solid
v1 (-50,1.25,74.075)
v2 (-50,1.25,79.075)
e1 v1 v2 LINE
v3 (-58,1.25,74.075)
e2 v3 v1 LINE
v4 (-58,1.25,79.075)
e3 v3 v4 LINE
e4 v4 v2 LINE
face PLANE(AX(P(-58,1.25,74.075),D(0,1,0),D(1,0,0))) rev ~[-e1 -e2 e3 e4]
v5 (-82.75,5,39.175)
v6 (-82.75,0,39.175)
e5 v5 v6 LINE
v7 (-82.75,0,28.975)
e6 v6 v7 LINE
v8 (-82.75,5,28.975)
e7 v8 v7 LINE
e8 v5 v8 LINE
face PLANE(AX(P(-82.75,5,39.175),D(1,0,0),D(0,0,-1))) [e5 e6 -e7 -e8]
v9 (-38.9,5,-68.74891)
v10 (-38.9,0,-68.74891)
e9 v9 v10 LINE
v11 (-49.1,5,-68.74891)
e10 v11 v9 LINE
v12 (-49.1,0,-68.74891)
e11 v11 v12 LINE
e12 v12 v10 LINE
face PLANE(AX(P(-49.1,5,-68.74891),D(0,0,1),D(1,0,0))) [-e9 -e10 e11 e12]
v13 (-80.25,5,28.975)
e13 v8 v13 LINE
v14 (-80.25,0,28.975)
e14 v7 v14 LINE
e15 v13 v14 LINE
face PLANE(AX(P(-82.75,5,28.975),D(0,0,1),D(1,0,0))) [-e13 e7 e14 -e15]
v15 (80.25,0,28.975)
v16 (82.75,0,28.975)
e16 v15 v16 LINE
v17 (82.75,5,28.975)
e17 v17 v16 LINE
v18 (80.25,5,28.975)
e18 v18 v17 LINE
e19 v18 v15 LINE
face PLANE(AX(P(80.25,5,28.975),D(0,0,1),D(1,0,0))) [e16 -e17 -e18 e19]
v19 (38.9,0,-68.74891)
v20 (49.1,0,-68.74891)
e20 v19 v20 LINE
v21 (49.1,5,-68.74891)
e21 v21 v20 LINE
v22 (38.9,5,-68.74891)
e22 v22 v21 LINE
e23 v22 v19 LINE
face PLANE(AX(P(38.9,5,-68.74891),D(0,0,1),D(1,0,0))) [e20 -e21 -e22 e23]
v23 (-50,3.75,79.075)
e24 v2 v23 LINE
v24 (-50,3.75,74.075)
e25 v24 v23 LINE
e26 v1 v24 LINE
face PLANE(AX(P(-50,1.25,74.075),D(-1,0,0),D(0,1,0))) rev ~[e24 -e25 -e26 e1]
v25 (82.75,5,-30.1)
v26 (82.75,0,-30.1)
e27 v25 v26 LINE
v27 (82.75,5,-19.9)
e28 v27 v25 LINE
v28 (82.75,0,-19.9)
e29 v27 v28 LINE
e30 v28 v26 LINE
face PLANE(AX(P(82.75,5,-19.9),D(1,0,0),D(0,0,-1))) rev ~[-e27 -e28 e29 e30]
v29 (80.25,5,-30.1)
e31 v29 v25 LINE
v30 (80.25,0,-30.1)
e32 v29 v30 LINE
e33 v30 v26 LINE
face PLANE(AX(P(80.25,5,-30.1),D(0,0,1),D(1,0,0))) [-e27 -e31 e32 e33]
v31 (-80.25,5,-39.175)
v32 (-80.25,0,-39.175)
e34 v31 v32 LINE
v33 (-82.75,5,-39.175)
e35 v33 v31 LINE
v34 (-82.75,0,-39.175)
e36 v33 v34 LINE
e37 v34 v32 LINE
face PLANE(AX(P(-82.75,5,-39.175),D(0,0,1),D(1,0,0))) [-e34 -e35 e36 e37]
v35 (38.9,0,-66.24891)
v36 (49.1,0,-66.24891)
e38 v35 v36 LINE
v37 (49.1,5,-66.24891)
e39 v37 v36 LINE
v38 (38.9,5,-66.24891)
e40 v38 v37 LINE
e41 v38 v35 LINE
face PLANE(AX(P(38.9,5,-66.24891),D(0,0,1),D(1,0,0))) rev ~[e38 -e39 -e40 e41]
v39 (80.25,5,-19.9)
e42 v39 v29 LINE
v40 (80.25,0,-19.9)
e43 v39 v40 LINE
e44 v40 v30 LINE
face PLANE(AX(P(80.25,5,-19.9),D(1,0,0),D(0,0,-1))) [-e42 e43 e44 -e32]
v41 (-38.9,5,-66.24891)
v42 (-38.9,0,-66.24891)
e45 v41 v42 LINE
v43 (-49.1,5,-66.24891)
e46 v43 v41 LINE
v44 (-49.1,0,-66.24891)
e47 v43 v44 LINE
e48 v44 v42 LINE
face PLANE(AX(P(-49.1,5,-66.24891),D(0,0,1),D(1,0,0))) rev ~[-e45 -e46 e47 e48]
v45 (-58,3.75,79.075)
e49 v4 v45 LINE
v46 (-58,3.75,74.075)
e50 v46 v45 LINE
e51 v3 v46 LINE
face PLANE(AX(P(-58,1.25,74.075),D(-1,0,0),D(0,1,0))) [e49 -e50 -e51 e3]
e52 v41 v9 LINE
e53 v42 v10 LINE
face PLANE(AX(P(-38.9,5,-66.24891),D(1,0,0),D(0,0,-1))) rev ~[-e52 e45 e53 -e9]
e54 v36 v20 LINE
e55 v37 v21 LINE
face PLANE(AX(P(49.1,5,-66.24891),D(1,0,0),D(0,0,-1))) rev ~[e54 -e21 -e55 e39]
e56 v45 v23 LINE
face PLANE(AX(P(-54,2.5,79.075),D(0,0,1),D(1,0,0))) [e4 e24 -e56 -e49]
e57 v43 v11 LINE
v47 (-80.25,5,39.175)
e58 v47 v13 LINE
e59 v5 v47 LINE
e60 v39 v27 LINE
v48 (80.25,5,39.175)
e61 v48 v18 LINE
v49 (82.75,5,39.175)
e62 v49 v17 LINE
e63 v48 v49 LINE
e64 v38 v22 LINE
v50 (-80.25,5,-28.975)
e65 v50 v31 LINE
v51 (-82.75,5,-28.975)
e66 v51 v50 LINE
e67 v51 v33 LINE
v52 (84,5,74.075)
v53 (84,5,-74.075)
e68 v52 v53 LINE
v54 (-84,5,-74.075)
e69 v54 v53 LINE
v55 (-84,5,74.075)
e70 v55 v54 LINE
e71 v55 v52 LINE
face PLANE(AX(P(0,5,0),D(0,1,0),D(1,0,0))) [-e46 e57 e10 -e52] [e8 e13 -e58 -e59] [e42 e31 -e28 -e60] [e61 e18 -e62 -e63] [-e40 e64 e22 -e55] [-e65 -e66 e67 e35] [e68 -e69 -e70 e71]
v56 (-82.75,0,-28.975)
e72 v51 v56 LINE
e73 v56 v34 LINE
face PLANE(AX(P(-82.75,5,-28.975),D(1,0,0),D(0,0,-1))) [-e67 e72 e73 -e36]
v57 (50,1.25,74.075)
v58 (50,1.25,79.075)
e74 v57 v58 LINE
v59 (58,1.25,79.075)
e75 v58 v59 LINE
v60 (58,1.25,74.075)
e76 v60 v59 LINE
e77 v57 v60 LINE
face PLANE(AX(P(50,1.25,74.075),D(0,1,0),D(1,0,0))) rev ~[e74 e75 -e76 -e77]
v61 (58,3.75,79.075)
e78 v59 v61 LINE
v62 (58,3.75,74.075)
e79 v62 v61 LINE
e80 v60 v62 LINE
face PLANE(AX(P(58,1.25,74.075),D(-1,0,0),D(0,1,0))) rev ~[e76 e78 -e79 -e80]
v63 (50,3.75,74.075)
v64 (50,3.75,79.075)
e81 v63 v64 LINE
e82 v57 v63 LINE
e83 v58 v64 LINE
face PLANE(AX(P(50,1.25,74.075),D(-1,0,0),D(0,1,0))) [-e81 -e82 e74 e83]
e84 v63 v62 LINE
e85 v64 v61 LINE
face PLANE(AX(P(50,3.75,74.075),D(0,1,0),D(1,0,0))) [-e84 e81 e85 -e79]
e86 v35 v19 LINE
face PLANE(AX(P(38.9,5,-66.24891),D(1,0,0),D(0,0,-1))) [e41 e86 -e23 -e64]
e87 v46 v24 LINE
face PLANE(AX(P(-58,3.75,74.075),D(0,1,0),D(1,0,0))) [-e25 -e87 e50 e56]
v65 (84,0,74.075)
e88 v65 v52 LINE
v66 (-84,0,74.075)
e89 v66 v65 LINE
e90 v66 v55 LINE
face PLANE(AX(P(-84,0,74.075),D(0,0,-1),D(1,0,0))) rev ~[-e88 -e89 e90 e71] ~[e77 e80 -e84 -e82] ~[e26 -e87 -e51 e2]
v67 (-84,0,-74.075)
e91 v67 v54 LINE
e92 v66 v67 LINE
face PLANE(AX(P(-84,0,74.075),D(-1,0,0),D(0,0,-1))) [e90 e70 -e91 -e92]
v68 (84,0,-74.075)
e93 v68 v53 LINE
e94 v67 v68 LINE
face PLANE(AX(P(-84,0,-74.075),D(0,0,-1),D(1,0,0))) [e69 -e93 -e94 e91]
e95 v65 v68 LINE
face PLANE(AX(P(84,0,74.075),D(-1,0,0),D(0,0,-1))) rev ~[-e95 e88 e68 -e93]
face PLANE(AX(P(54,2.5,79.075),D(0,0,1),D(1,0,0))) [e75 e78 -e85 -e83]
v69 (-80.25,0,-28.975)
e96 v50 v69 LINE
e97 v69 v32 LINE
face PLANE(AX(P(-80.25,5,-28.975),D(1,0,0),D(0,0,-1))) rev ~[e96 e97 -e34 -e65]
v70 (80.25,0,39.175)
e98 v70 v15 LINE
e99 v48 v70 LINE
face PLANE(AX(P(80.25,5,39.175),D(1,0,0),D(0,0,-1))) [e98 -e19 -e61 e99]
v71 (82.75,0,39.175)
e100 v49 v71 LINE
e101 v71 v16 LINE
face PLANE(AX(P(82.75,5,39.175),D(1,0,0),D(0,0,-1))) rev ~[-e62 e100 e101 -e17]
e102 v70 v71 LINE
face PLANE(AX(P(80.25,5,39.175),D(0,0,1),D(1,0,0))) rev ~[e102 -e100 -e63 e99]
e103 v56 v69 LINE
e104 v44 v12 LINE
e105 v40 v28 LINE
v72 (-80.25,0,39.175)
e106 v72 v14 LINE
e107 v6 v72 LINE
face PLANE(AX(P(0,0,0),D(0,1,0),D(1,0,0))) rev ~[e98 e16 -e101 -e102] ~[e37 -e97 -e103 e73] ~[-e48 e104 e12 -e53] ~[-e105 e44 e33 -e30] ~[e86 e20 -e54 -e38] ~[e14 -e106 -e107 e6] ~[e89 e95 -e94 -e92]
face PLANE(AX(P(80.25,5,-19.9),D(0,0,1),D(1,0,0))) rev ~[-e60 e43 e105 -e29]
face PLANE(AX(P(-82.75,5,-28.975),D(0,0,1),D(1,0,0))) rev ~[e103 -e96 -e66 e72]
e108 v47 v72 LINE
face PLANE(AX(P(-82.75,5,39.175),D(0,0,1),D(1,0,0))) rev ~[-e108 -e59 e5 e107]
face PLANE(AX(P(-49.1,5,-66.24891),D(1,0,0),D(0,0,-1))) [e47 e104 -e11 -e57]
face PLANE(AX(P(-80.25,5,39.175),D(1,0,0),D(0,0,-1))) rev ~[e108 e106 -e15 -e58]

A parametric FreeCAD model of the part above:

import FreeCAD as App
import Part
import Sketcher
from FreeCAD import Vector

doc = App.newDocument("Part")
params = doc.addObject("Spreadsheet::Sheet", "Params")
for row, (alias, value) in enumerate([
    ("sketch1_width", "168 mm"),
    ("sketch1_height", "148.15 mm"),
    ("pad1_length", "5 mm"),
    ("sketch2_width", "2.5 mm"),
    ("sketch2_height", "10.2 mm"),
    ("pocket1_length", "5 mm"),
    ("sketch3_width", "8 mm"),
    ("sketch3_height", "2.5 mm"),
    ("pad2_length", "5 mm"),
    ("sketch4_width", "10.2 mm"),
    ("sketch4_height", "2.5 mm"),
    ("pocket2_length", "5 mm"),
], start=1):
    params.set(f"A{row}", alias)
    params.set(f"B{row}", "=" + value)
    params.setAlias(f"B{row}", alias)

body = doc.addObject("PartDesign::Body", "Body")

sketch1 = doc.addObject("Sketcher::SketchObject", "Sketch")
body.addObject(sketch1)
sketch1.AttachmentSupport = (doc.XZ_Plane, [""])
sketch1.MapMode = "FlatFace"
sketch1.addGeometry([
    Part.LineSegment(Vector(-84, -74, 0), Vector(-84, 74, 0)),
    Part.LineSegment(Vector(-84, 74, 0), Vector(84, 74, 0)),
    Part.LineSegment(Vector(84, 74, 0), Vector(84, -74, 0)),
    Part.LineSegment(Vector(84, -74, 0), Vector(-84, -74, 0)),
], False)
sketch1.addConstraint([
    Sketcher.Constraint("Coincident", 0, 2, 1, 1),
    Sketcher.Constraint("Coincident", 1, 2, 2, 1),
    Sketcher.Constraint("Coincident", 2, 2, 3, 1),
    Sketcher.Constraint("Coincident", 3, 2, 0, 1),
    Sketcher.Constraint("Vertical", 0),
    Sketcher.Constraint("Horizontal", 1),
    Sketcher.Constraint("Vertical", 2),
    Sketcher.Constraint("Horizontal", 3),
    Sketcher.Constraint("Symmetric", 0, 2, 2, 2, -1, 1),
    Sketcher.Constraint("DistanceX", 1, 1, 1, 2, 168.0),
    Sketcher.Constraint("DistanceY", 0, 1, 0, 2, 148.15),
])
sketch1.setExpression("Constraints[9]", "Params.sketch1_width")
sketch1.setExpression("Constraints[10]", "Params.sketch1_height")
pad1 = doc.addObject("PartDesign::Pad", "Pad")
body.addObject(pad1)
pad1.Profile = sketch1
pad1.setExpression("Length", "Params.pad1_length")
pad1.Reversed = True

sketch2 = doc.addObject("Sketcher::SketchObject", "Sketch001")
body.addObject(sketch2)
sketch2.AttachmentSupport = (doc.XZ_Plane, [""])
sketch2.MapMode = "FlatFace"
sketch2.AttachmentOffset = App.Placement(Vector(0, 0, -5), App.Rotation())
sketch2.addGeometry([
    Part.LineSegment(Vector(-82.8, -39.2, 0), Vector(-82.8, -29, 0)),
    Part.LineSegment(Vector(-82.8, -29, 0), Vector(-80.2, -29, 0)),
    Part.LineSegment(Vector(-80.2, -29, 0), Vector(-80.2, -39.2, 0)),
    Part.LineSegment(Vector(-80.2, -39.2, 0), Vector(-82.8, -39.2, 0)),
    Part.LineSegment(Vector(-82.8, 29, 0), Vector(-82.8, 39.2, 0)),
    Part.LineSegment(Vector(-82.8, 39.2, 0), Vector(-80.2, 39.2, 0)),
    Part.LineSegment(Vector(-80.2, 39.2, 0), Vector(-80.2, 29, 0)),
    Part.LineSegment(Vector(-80.2, 29, 0), Vector(-82.8, 29, 0)),
    Part.LineSegment(Vector(80.2, 29, 0), Vector(80.2, 39.2, 0)),
    Part.LineSegment(Vector(80.2, 39.2, 0), Vector(82.8, 39.2, 0)),
    Part.LineSegment(Vector(82.8, 39.2, 0), Vector(82.8, 29, 0)),
    Part.LineSegment(Vector(82.8, 29, 0), Vector(80.2, 29, 0)),
    Part.LineSegment(Vector(80.2, -30.1, 0), Vector(80.2, -19.9, 0)),
    Part.LineSegment(Vector(80.2, -19.9, 0), Vector(82.8, -19.9, 0)),
    Part.LineSegment(Vector(82.8, -19.9, 0), Vector(82.8, -30.1, 0)),
    Part.LineSegment(Vector(82.8, -30.1, 0), Vector(80.2, -30.1, 0)),
], False)
sketch2.addConstraint([
    Sketcher.Constraint("Coincident", 0, 2, 1, 1),
    Sketcher.Constraint("Coincident", 1, 2, 2, 1),
    Sketcher.Constraint("Coincident", 2, 2, 3, 1),
    Sketcher.Constraint("Coincident", 3, 2, 0, 1),
    Sketcher.Constraint("Coincident", 4, 2, 5, 1),
    Sketcher.Constraint("Coincident", 5, 2, 6, 1),
    Sketcher.Constraint("Coincident", 6, 2, 7, 1),
    Sketcher.Constraint("Coincident", 7, 2, 4, 1),
    Sketcher.Constraint("Coincident", 8, 2, 9, 1),
    Sketcher.Constraint("Coincident", 9, 2, 10, 1),
    Sketcher.Constraint("Coincident", 10, 2, 11, 1),
    Sketcher.Constraint("Coincident", 11, 2, 8, 1),
    Sketcher.Constraint("Coincident", 12, 2, 13, 1),
    Sketcher.Constraint("Coincident", 13, 2, 14, 1),
    Sketcher.Constraint("Coincident", 14, 2, 15, 1),
    Sketcher.Constraint("Coincident", 15, 2, 12, 1),
    Sketcher.Constraint("Vertical", 0),
    Sketcher.Constraint("Horizontal", 1),
    Sketcher.Constraint("Vertical", 2),
    Sketcher.Constraint("Horizontal", 3),
    Sketcher.Constraint("Vertical", 4),
    Sketcher.Constraint("Horizontal", 5),
    Sketcher.Constraint("Vertical", 6),
    Sketcher.Constraint("Horizontal", 7),
    Sketcher.Constraint("Vertical", 8),
    Sketcher.Constraint("Horizontal", 9),
    Sketcher.Constraint("Vertical", 10),
    Sketcher.Constraint("Horizontal", 11),
    Sketcher.Constraint("Vertical", 12),
    Sketcher.Constraint("Horizontal", 13),
    Sketcher.Constraint("Vertical", 14),
    Sketcher.Constraint("Horizontal", 15),
    Sketcher.Constraint("Symmetric", 2, 2, 8, 2, -1, 1),
    Sketcher.Constraint("Symmetric", 0, 2, 10, 2, -1, 1),
    Sketcher.Constraint("Symmetric", 5, 2, 8, 2, -2),
    Sketcher.Constraint("Symmetric", 7, 2, 10, 2, -2),
    Sketcher.Constraint("Vertical", 11, 2, 12, 2),
    Sketcher.Constraint("Vertical", 10, 2, 13, 2),
    Sketcher.Constraint("Equal", 10, 12),
    Sketcher.Constraint("DistanceX", 1, 1, 1, 2, 2.5),
    Sketcher.Constraint("DistanceY", 0, 1, 0, 2, 10.2),
    Sketcher.Constraint("DistanceX", 4, 2, 8, 2, 163.0),
    Sketcher.Constraint("DistanceY", 12, 2, -1, 1, 19.9),
    Sketcher.Constraint("DistanceY", 0, 2, 4, 2, 68.15),
])
sketch2.setExpression("Constraints[39]", "Params.sketch2_width")
sketch2.setExpression("Constraints[40]", "Params.sketch2_height")
pocket1 = doc.addObject("PartDesign::Pocket", "Pocket")
body.addObject(pocket1)
pocket1.Profile = sketch2
pocket1.setExpression("Length", "Params.pocket1_length")
pocket1.Reversed = True

sketch3 = doc.addObject("Sketcher::SketchObject", "Sketch002")
body.addObject(sketch3)
sketch3.AttachmentSupport = (doc.XY_Plane, [""])
sketch3.MapMode = "FlatFace"
sketch3.AttachmentOffset = App.Placement(Vector(0, 0, 74.075), App.Rotation())
sketch3.addGeometry([
    Part.LineSegment(Vector(-58, 3.8, 0), Vector(-58, 1.2, 0)),
    Part.LineSegment(Vector(-58, 1.2, 0), Vector(-50, 1.2, 0)),
    Part.LineSegment(Vector(-50, 1.2, 0), Vector(-50, 3.8, 0)),
    Part.LineSegment(Vector(-50, 3.8, 0), Vector(-58, 3.8, 0)),
    Part.LineSegment(Vector(50, 3.8, 0), Vector(50, 1.2, 0)),
    Part.LineSegment(Vector(50, 1.2, 0), Vector(58, 1.2, 0)),
    Part.LineSegment(Vector(58, 1.2, 0), Vector(58, 3.8, 0)),
    Part.LineSegment(Vector(58, 3.8, 0), Vector(50, 3.8, 0)),
], False)
sketch3.addConstraint([
    Sketcher.Constraint("Coincident", 0, 2, 1, 1),
    Sketcher.Constraint("Coincident", 1, 2, 2, 1),
    Sketcher.Constraint("Coincident", 2, 2, 3, 1),
    Sketcher.Constraint("Coincident", 3, 2, 0, 1),
    Sketcher.Constraint("Coincident", 4, 2, 5, 1),
    Sketcher.Constraint("Coincident", 5, 2, 6, 1),
    Sketcher.Constraint("Coincident", 6, 2, 7, 1),
    Sketcher.Constraint("Coincident", 7, 2, 4, 1),
    Sketcher.Constraint("Vertical", 0),
    Sketcher.Constraint("Horizontal", 1),
    Sketcher.Constraint("Vertical", 2),
    Sketcher.Constraint("Horizontal", 3),
    Sketcher.Constraint("Vertical", 4),
    Sketcher.Constraint("Horizontal", 5),
    Sketcher.Constraint("Vertical", 6),
    Sketcher.Constraint("Horizontal", 7),
    Sketcher.Constraint("Symmetric", 1, 2, 4, 2, -2),
    Sketcher.Constraint("Symmetric", 3, 2, 6, 2, -2),
    Sketcher.Constraint("DistanceX", 1, 1, 1, 2, 8.0),
    Sketcher.Constraint("DistanceY", 0, 2, 0, 1, 2.5),
    Sketcher.Constraint("DistanceX", 0, 2, -1, 1, 58.0),
    Sketcher.Constraint("DistanceY", -1, 1, 0, 2, 1.25),
])
sketch3.setExpression("Constraints[18]", "Params.sketch3_width")
sketch3.setExpression("Constraints[19]", "Params.sketch3_height")
pad2 = doc.addObject("PartDesign::Pad", "Pad001")
body.addObject(pad2)
pad2.Profile = sketch3
pad2.setExpression("Length", "Params.pad2_length")

sketch4 = doc.addObject("Sketcher::SketchObject", "Sketch003")
body.addObject(sketch4)
sketch4.AttachmentSupport = (doc.XZ_Plane, [""])
sketch4.MapMode = "FlatFace"
sketch4.AttachmentOffset = App.Placement(Vector(0, 0, -5), App.Rotation())
sketch4.addGeometry([
    Part.LineSegment(Vector(-49.1, -68.7, 0), Vector(-49.1, -66.2, 0)),
    Part.LineSegment(Vector(-49.1, -66.2, 0), Vector(-38.9, -66.2, 0)),
    Part.LineSegment(Vector(-38.9, -66.2, 0), Vector(-38.9, -68.7, 0)),
    Part.LineSegment(Vector(-38.9, -68.7, 0), Vector(-49.1, -68.7, 0)),
    Part.LineSegment(Vector(38.9, -68.7, 0), Vector(38.9, -66.2, 0)),
    Part.LineSegment(Vector(38.9, -66.2, 0), Vector(49.1, -66.2, 0)),
    Part.LineSegment(Vector(49.1, -66.2, 0), Vector(49.1, -68.7, 0)),
    Part.LineSegment(Vector(49.1, -68.7, 0), Vector(38.9, -68.7, 0)),
], False)
sketch4.addConstraint([
    Sketcher.Constraint("Coincident", 0, 2, 1, 1),
    Sketcher.Constraint("Coincident", 1, 2, 2, 1),
    Sketcher.Constraint("Coincident", 2, 2, 3, 1),
    Sketcher.Constraint("Coincident", 3, 2, 0, 1),
    Sketcher.Constraint("Coincident", 4, 2, 5, 1),
    Sketcher.Constraint("Coincident", 5, 2, 6, 1),
    Sketcher.Constraint("Coincident", 6, 2, 7, 1),
    Sketcher.Constraint("Coincident", 7, 2, 4, 1),
    Sketcher.Constraint("Vertical", 0),
    Sketcher.Constraint("Horizontal", 1),
    Sketcher.Constraint("Vertical", 2),
    Sketcher.Constraint("Horizontal", 3),
    Sketcher.Constraint("Vertical", 4),
    Sketcher.Constraint("Horizontal", 5),
    Sketcher.Constraint("Vertical", 6),
    Sketcher.Constraint("Horizontal", 7),
    Sketcher.Constraint("Symmetric", 1, 2, 4, 2, -2),
    Sketcher.Constraint("Symmetric", 3, 2, 6, 2, -2),
    Sketcher.Constraint("DistanceX", 1, 1, 1, 2, 10.2),
    Sketcher.Constraint("DistanceY", 0, 1, 0, 2, 2.5),
    Sketcher.Constraint("DistanceX", 0, 2, 4, 2, 88.0),
    Sketcher.Constraint("DistanceY", 0, 2, -1, 1, 66.24891),
])
sketch4.setExpression("Constraints[18]", "Params.sketch4_width")
sketch4.setExpression("Constraints[19]", "Params.sketch4_height")
pocket2 = doc.addObject("PartDesign::Pocket", "Pocket001")
body.addObject(pocket2)
pocket2.Profile = sketch4
pocket2.setExpression("Length", "Params.pocket2_length")
pocket2.Reversed = True

doc.recompute()
